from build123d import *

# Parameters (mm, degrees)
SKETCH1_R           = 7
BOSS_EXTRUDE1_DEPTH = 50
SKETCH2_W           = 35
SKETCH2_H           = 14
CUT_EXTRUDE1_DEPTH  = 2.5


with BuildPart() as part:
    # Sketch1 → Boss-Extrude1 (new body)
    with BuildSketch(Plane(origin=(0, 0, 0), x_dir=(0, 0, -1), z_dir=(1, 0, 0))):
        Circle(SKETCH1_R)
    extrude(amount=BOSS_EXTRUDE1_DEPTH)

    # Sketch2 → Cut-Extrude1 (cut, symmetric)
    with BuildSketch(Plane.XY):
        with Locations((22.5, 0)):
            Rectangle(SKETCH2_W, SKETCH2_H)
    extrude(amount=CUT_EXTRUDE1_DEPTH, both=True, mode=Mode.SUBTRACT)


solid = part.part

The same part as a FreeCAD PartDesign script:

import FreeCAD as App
import Part
import Sketcher
Q = App.Units.Quantity


def add_polygon(sketch, points):
    """Adds a closed chain of lines whose ends are joined by coincident constraints."""
    first, n = sketch.GeometryCount, len(points)
    for a, b in zip(points, points[1:] + points[:1]):
        sketch.addGeometry(Part.LineSegment(App.Vector(*a, 0), App.Vector(*b, 0)), False)
    for i in range(n):
        sketch.addConstraint(Sketcher.Constraint("Coincident", first + i, 2, first + (i + 1) % n, 1))

doc = App.newDocument("Part")
body = doc.addObject("PartDesign::Body", "Body")

# Sketch on YZ plane
sketch1 = body.newObject("Sketcher::SketchObject", "Sketch")
sketch1.AttachmentSupport = (doc.getObject("YZ_Plane"), [""])
sketch1.MapMode = "FlatFace"
sketch1.addGeometry(Part.Circle(App.Vector(0, 0, 0), App.Vector(0, 0, 1), 7), False)
sketch1.addConstraint([
    Sketcher.Constraint("Coincident", 0, 3, -1, 1),
    Sketcher.Constraint("Diameter", 0, Q("14 mm")),
])
pad1 = body.newObject("PartDesign::Pad", "Pad")
pad1.Profile = sketch1
pad1.Length = 50

# Sketch on XY plane
sketch2 = body.newObject("Sketcher::SketchObject", "Sketch001")
sketch2.AttachmentSupport = (doc.getObject("XY_Plane"), [""])
sketch2.MapMode = "FlatFace"
add_polygon(sketch2, [(5, 7), (5, -7), (40, -7), (40, 7)])  # lines 0-3
sketch2.addConstraint([
    Sketcher.Constraint("Vertical", 0),
    Sketcher.Constraint("Horizontal", 1),
    Sketcher.Constraint("Vertical", 2),
    Sketcher.Constraint("Horizontal", 3),
    Sketcher.Constraint("DistanceX", 1, 1, 1, 2, Q("35 mm")),
    Sketcher.Constraint("DistanceY", 0, 2, 0, 1, Q("14 mm")),
    Sketcher.Constraint("DistanceX", -1, 1, 0, 2, Q("5 mm")),
    Sketcher.Constraint("DistanceY", 0, 2, -1, 1, Q("7 mm")),
])
pocket1 = body.newObject("PartDesign::Pocket", "Pocket")
pocket1.Profile = sketch2
pocket1.Length = 5
pocket1.Midplane = True

doc.recompute()
